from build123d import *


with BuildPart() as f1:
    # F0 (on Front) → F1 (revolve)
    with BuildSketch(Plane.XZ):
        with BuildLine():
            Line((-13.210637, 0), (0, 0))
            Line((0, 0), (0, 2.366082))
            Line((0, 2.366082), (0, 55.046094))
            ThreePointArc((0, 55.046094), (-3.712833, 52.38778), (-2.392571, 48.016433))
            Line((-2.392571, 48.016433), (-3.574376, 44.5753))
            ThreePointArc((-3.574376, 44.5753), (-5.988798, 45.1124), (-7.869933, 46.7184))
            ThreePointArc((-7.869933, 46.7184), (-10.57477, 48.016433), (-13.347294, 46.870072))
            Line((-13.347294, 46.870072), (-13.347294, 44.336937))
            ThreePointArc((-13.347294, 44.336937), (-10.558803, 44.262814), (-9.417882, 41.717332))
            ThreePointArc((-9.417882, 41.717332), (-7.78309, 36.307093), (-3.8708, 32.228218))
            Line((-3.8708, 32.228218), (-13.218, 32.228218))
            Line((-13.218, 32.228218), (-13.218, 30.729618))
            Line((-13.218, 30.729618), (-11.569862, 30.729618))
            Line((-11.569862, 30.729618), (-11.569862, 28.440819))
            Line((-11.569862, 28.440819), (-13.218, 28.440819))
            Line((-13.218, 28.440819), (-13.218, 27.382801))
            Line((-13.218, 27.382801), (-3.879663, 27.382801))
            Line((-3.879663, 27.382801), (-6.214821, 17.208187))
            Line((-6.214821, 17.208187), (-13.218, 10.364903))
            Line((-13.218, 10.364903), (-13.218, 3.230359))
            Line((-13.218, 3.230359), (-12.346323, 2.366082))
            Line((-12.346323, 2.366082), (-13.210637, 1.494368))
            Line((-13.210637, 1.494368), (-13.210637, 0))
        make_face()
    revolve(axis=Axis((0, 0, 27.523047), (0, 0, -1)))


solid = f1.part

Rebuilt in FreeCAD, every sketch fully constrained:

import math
import FreeCAD as App
import Part
import Sketcher
from FreeCAD import Vector
Q = App.Units.Quantity

doc = App.newDocument("Part")
params = doc.addObject("Spreadsheet::Sheet", "Params")
for row, (alias, value) in enumerate([
    ("sketch1_width", "0.368 in"),
    ("sketch1_height", "0.059 in"),
    ("revolution_angle", "360 deg"),
], start=1):
    params.set(f"A{row}", alias)
    params.set(f"B{row}", "=" + value)
    params.setAlias(f"B{row}", alias)

body = doc.addObject("PartDesign::Body", "Body")

# Sketch on XZ plane
sketch1 = body.newObject("Sketcher::SketchObject", "Sketch")
sketch1.AttachmentSupport = (doc.getObject("XZ_Plane"), [""])
sketch1.MapMode = "FlatFace"
sketch1.addGeometry([
    Part.LineSegment(Vector(-13.2, 0, 0), Vector(0, 0, 0)),  # 0
    Part.LineSegment(Vector(0, 0, 0), Vector(0, 55, 0)),  # 1
    Part.ArcOfCircle(Part.Circle(Vector(0, 51.1, 0), Vector(0, 0, 1), 3.9), math.radians(90), math.radians(232)),  # 2
    Part.LineSegment(Vector(-2.4, 48, 0), Vector(-3.6, 44.6, 0)),  # 3
    Part.ArcOfCircle(Part.Circle(Vector(-3.7, 49.7, 0), Vector(0, 0, 1), 5.1), math.radians(-144), math.radians(-89)),  # 4
    Part.ArcOfCircle(Part.Circle(Vector(-10.7, 44.3, 0), Vector(0, 0, 1), 3.7), math.radians(40), math.radians(137)),  # 5
    Part.LineSegment(Vector(-13.3, 46.9, 0), Vector(-13.3, 44.3, 0)),  # 6
    Part.ArcOfCircle(Part.Circle(Vector(-12, 42.1, 0), Vector(0, 0, 1), 2.6), math.radians(-8), math.radians(121)),  # 7
    Part.ArcOfCircle(Part.Circle(Vector(2.7, 42.4, 0), Vector(0, 0, 1), 12.1), math.radians(-177), math.radians(-123)),  # 8
    Part.LineSegment(Vector(-3.9, 32.2, 0), Vector(-13.2, 32.2, 0)),  # 9
    Part.LineSegment(Vector(-13.2, 32.2, 0), Vector(-13.2, 30.7, 0)),  # 10
    Part.LineSegment(Vector(-13.2, 30.7, 0), Vector(-11.6, 30.7, 0)),  # 11
    Part.LineSegment(Vector(-11.6, 30.7, 0), Vector(-11.6, 28.4, 0)),  # 12
    Part.LineSegment(Vector(-11.6, 28.4, 0), Vector(-13.2, 28.4, 0)),  # 13
    Part.LineSegment(Vector(-13.2, 28.4, 0), Vector(-13.2, 27.4, 0)),  # 14
    Part.LineSegment(Vector(-13.2, 27.4, 0), Vector(-3.9, 27.4, 0)),  # 15
    Part.LineSegment(Vector(-3.9, 27.4, 0), Vector(-6.2, 17.2, 0)),  # 16
    Part.LineSegment(Vector(-6.2, 17.2, 0), Vector(-13.2, 10.4, 0)),  # 17
    Part.LineSegment(Vector(-13.2, 10.4, 0), Vector(-13.2, 3.2, 0)),  # 18
    Part.LineSegment(Vector(-13.2, 3.2, 0), Vector(-12.3, 2.4, 0)),  # 19
    Part.LineSegment(Vector(-12.3, 2.4, 0), Vector(-13.2, 1.5, 0)),  # 20
    Part.LineSegment(Vector(-13.2, 1.5, 0), Vector(-13.2, 0, 0)),  # 21
], False)
sketch1.addConstraint([
    Sketcher.Constraint("Coincident", 0, 2, 1, 1),
    Sketcher.Constraint("Coincident", 1, 2, 2, 1),
    Sketcher.Constraint("Coincident", 2, 2, 3, 1),
    Sketcher.Constraint("Coincident", 3, 2, 4, 2),
    Sketcher.Constraint("Coincident", 4, 1, 5, 1),
    Sketcher.Constraint("Coincident", 5, 2, 6, 1),
    Sketcher.Constraint("Coincident", 6, 2, 7, 2),
    Sketcher.Constraint("Coincident", 7, 1, 8, 1),
    Sketcher.Constraint("Coincident", 8, 2, 9, 1),
    Sketcher.Constraint("Coincident", 9, 2, 10, 1),
    Sketcher.Constraint("Coincident", 10, 2, 11, 1),
    Sketcher.Constraint("Coincident", 11, 2, 12, 1),
    Sketcher.Constraint("Coincident", 12, 2, 13, 1),
    Sketcher.Constraint("Coincident", 13, 2, 14, 1),
    Sketcher.Constraint("Coincident", 14, 2, 15, 1),
    Sketcher.Constraint("Coincident", 15, 2, 16, 1),
    Sketcher.Constraint("Coincident", 16, 2, 17, 1),
    Sketcher.Constraint("Coincident", 17, 2, 18, 1),
    Sketcher.Constraint("Coincident", 18, 2, 19, 1),
    Sketcher.Constraint("Coincident", 19, 2, 20, 1),
    Sketcher.Constraint("Coincident", 20, 2, 21, 1),
    Sketcher.Constraint("Coincident", 21, 2, 0, 1),
    Sketcher.Constraint("Horizontal", 0),
    Sketcher.Constraint("Vertical", 1),
    Sketcher.Constraint("Vertical", 6),
    Sketcher.Constraint("Horizontal", 9),
    Sketcher.Constraint("Vertical", 10),
    Sketcher.Constraint("Horizontal", 11),
    Sketcher.Constraint("Vertical", 12),
    Sketcher.Constraint("Horizontal", 13),
    Sketcher.Constraint("Vertical", 14),
    Sketcher.Constraint("Horizontal", 15),
    Sketcher.Constraint("Vertical", 18),
    Sketcher.Constraint("Vertical", 21),
    Sketcher.Constraint("Coincident", 0, 2, -1, 1),
    Sketcher.Constraint("PointOnObject", 2, 3, -2),
    Sketcher.Constraint("Perpendicular", 19, 20),
    Sketcher.Constraint("Horizontal", 5, 3, 6, 2),
    Sketcher.Constraint("Vertical", 10, 2, 13, 2),
    Sketcher.Constraint("Vertical", 14, 2, 17, 2),
    Sketcher.Constraint("DistanceX", 9, 2, 9, 1, Q("0.368 in")),
    Sketcher.Constraint("DistanceY", 10, 2, 10, 1, Q("0.059 in")),
    Sketcher.Constraint("Radius", 2, Q("3.921991 mm")),
    Sketcher.Constraint("Radius", 4, Q("5.12153 mm")),
    Sketcher.Constraint("DistanceY", 12, 2, 12, 1, Q("2.288799 mm")),
    Sketcher.Constraint("Radius", 5, Q("3.680906 mm")),
    Sketcher.Constraint("Radius", 7, Q("2.619747 mm")),
    Sketcher.Constraint("Radius", 8, Q("12.108462 mm")),
    Sketcher.Constraint("DistanceY", 14, 2, 14, 1, Q("1.058018 mm")),
    Sketcher.Constraint("DistanceX", -1, 1, 8, 3, Q("2.670299 mm")),
    Sketcher.Constraint("DistanceY", -1, 1, 3, 2, Q("44.5753 mm")),
    Sketcher.Constraint("DistanceY", -1, 1, 4, 1, Q("46.7184 mm")),
    Sketcher.Constraint("DistanceX", 8, 2, -1, 1, Q("3.8708 mm")),
    Sketcher.Constraint("DistanceY", -1, 1, 14, 2, Q("27.382801 mm")),
    Sketcher.Constraint("DistanceX", 7, 3, 4, 3, Q("8.309602 mm")),
    Sketcher.Constraint("DistanceX", 12, 2, 15, 2, Q("7.690199 mm")),
    Sketcher.Constraint("DistanceY", 17, 2, 14, 2, Q("17.017898 mm")),
    Sketcher.Constraint("Distance", 17, Q("9.791581 mm")),
    Sketcher.Constraint("Distance", 20, Q("1.227568 mm")),
    Sketcher.Constraint("DistanceX", 0, 1, 0, 2, Q("13.210637 mm")),
    Sketcher.Constraint("DistanceX", 11, 1, 11, 2, Q("1.648138 mm")),
    Sketcher.Constraint("DistanceY", 1, 1, 1, 2, Q("55.046094 mm")),
    Sketcher.Constraint("DistanceY", 6, 2, 6, 1, Q("2.533135 mm")),
    Sketcher.Constraint("DistanceY", 18, 2, 18, 1, Q("7.134544 mm")),
    Sketcher.Constraint("DistanceY", 21, 2, 21, 1, Q("1.494368 mm")),
    Sketcher.Constraint("DistanceY", -1, 1, 4, 3, Q("49.69523 mm")),
    Sketcher.Constraint("DistanceX", 2, 2, -1, 1, Q("2.392571 mm")),
    Sketcher.Constraint("DistanceY", -1, 1, 5, 2, Q("46.870072 mm")),
    Sketcher.Constraint("DistanceX", 16, 2, -1, 1, Q("6.214821 mm")),
    Sketcher.Constraint("DistanceX", 5, 3, 2, 3, Q("10.676658 mm")),
])
sketch1.setExpression("Constraints[40]", "Params.sketch1_width")
sketch1.setExpression("Constraints[41]", "Params.sketch1_height")
revolution = body.newObject("PartDesign::Revolution", "Revolution")
revolution.Profile = sketch1
revolution.ReferenceAxis = (sketch1, ["V_Axis"])
revolution.setExpression("Angle", "Params.revolution_angle")

doc.recompute()
